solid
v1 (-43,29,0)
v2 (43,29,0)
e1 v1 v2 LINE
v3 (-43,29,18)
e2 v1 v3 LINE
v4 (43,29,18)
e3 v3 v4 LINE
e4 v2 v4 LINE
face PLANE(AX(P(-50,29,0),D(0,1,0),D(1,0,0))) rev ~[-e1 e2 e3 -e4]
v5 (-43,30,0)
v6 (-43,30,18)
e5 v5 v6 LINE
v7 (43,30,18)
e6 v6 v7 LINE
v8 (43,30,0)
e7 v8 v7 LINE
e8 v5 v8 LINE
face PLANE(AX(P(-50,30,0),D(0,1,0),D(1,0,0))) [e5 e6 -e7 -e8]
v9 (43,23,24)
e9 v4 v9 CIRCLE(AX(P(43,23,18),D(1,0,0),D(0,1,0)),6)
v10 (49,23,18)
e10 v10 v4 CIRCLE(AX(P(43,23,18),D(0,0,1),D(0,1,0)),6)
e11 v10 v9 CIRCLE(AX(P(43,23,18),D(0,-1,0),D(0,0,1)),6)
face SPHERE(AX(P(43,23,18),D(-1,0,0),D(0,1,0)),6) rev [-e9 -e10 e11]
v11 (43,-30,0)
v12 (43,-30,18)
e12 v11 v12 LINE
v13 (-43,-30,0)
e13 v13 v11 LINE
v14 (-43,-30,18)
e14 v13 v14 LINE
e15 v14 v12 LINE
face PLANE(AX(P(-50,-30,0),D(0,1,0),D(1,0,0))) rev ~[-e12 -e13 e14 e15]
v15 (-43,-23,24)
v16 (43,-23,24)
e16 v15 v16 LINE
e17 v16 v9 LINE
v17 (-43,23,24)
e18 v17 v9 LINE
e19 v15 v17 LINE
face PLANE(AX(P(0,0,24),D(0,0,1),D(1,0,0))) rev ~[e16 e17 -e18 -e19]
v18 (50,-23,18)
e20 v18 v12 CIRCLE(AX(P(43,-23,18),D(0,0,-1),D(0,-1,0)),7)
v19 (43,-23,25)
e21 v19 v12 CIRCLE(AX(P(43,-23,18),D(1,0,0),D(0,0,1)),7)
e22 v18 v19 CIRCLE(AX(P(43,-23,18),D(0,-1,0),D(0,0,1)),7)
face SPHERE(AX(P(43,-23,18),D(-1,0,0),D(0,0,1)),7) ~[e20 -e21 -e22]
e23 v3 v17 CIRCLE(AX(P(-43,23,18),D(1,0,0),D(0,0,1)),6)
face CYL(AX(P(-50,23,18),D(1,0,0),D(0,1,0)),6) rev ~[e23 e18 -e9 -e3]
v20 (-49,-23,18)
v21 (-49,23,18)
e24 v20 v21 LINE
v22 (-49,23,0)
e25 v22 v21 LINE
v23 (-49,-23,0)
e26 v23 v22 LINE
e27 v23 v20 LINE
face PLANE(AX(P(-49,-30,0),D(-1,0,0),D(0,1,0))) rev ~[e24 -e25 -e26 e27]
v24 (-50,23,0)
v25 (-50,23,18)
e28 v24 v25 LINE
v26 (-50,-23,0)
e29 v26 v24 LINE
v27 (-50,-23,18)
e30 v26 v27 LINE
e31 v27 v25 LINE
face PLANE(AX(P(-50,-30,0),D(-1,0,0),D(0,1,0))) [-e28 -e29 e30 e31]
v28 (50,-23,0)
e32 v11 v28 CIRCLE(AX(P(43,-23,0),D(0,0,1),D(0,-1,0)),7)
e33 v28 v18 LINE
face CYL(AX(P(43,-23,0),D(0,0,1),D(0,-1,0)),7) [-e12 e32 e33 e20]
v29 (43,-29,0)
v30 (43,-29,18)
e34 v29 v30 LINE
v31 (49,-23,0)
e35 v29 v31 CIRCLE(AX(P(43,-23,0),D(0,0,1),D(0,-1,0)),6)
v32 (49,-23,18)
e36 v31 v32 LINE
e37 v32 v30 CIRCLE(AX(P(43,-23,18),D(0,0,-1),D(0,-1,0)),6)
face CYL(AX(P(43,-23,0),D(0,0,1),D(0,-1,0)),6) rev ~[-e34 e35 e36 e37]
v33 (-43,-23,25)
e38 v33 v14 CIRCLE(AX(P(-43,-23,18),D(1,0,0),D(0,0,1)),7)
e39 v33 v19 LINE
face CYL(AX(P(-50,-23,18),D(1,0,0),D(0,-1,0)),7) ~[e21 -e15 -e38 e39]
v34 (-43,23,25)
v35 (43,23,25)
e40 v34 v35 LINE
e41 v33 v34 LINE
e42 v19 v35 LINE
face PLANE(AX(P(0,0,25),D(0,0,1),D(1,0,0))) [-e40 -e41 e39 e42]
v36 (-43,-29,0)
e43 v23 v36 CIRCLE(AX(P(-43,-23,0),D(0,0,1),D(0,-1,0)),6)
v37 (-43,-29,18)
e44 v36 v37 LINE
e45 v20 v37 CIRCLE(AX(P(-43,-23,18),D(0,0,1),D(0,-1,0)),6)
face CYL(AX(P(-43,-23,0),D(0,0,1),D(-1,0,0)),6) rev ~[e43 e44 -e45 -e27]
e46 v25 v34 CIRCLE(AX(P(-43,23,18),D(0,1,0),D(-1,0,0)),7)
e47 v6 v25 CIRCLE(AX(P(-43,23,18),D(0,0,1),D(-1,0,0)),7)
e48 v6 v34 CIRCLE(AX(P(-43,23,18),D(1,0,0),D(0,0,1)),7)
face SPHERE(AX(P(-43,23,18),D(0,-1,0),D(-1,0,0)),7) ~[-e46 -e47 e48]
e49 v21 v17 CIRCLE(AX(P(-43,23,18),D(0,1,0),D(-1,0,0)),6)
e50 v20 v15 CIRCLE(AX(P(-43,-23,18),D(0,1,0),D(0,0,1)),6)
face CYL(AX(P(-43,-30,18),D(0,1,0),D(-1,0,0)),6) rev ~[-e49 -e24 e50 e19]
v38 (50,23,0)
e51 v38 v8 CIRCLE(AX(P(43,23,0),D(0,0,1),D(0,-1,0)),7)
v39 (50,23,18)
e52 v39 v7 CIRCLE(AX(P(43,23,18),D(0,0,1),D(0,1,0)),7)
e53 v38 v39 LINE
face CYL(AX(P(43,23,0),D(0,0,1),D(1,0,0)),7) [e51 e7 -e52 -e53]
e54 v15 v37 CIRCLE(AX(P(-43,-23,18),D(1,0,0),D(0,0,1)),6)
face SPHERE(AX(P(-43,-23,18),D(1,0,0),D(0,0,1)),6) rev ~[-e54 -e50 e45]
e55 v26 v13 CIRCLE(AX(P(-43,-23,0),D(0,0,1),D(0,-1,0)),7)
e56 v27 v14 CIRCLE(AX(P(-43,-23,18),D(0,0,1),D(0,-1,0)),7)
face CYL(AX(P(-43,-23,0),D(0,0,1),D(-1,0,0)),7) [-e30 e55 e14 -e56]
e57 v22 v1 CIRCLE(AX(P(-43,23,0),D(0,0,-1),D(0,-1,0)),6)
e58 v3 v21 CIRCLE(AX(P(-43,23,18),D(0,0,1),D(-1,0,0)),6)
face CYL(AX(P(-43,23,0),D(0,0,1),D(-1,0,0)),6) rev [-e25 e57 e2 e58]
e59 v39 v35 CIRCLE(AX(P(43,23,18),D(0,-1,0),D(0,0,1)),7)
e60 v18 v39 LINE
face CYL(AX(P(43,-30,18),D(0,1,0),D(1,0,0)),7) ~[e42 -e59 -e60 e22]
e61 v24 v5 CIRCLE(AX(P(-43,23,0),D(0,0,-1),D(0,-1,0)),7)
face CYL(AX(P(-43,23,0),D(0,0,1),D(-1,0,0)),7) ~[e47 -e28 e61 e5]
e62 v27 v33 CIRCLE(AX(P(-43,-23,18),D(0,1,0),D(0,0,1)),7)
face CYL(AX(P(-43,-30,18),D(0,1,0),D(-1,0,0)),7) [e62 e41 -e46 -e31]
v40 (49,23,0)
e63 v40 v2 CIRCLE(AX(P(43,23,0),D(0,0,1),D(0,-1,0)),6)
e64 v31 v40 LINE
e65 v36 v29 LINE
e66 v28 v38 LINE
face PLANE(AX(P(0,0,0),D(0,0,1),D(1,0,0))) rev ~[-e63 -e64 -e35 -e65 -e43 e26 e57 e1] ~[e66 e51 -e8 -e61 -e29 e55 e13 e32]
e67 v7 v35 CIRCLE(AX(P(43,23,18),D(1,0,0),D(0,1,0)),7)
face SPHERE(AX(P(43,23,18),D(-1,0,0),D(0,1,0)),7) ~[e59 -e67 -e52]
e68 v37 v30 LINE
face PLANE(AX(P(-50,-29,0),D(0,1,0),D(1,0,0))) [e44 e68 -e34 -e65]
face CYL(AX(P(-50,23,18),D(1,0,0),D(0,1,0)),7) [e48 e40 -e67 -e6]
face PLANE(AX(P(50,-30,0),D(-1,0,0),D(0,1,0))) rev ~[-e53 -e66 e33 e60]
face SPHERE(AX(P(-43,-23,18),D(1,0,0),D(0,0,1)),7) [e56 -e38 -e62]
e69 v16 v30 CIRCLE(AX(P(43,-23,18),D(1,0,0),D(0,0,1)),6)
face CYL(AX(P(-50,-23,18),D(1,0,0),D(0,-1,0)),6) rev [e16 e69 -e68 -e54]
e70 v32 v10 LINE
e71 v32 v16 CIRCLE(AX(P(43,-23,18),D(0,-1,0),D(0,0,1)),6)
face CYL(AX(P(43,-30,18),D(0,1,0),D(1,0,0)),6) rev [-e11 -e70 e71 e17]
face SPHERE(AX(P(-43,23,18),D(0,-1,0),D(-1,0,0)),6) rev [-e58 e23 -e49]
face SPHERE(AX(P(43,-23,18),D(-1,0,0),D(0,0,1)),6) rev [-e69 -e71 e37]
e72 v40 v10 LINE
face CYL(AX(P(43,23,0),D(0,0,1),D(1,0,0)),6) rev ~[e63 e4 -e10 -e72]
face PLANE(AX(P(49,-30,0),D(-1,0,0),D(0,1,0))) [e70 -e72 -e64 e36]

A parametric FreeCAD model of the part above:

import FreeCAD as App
import Part
import Sketcher

V = App.Vector


def edges_at(feature, points):
    """Names of the edges that pass closest to the given points."""
    edges = feature.Shape.Edges
    near = lambda p: min(range(len(edges)), key=lambda i: edges[i].distToShape(Part.Vertex(*p))[0])
    return sorted({f"Edge{near(p) + 1}" for p in points})


def faces_at(feature, points):
    """Names of the faces that lie closest to the given points."""
    faces = feature.Shape.Faces
    near = lambda p: min(range(len(faces)), key=lambda i: faces[i].distToShape(Part.Vertex(*p))[0])
    return sorted({f"Face{near(p) + 1}" for p in points})

doc = App.newDocument("Part")
params = doc.addObject("Spreadsheet::Sheet", "Params")
for row, (alias, value) in enumerate([
    ("sketch1_width", "100 mm"),
    ("sketch1_height", "60 mm"),
    ("pad1_length", "25 mm"),
    ("fillet_radius", "7 mm"),
    ("thickness_wall", "1 mm"),
], start=1):
    params.set(f"A{row}", alias)
    params.set(f"B{row}", "=" + value)
    params.setAlias(f"B{row}", alias)

body = doc.addObject("PartDesign::Body", "Body")

sketch1 = body.newObject("Sketcher::SketchObject", "Sketch")
sketch1.AttachmentSupport = (doc.getObject("XY_Plane"), [""])
sketch1.MapMode = "FlatFace"
sketch1.addGeometry([
    Part.LineSegment(V(-50, 30, 0), V(-50, -30, 0)),
    Part.LineSegment(V(-50, -30, 0), V(50, -30, 0)),
    Part.LineSegment(V(50, -30, 0), V(50, 30, 0)),
    Part.LineSegment(V(50, 30, 0), V(-50, 30, 0)),
], False)
sketch1.addConstraint([
    Sketcher.Constraint("Coincident", 0, 2, 1, 1),
    Sketcher.Constraint("Coincident", 1, 2, 2, 1),
    Sketcher.Constraint("Coincident", 2, 2, 3, 1),
    Sketcher.Constraint("Coincident", 3, 2, 0, 1),
    Sketcher.Constraint("Vertical", 0),
    Sketcher.Constraint("Horizontal", 1),
    Sketcher.Constraint("Vertical", 2),
    Sketcher.Constraint("Horizontal", 3),
    Sketcher.Constraint("Symmetric", 0, 2, 2, 2, -1, 1),
    Sketcher.Constraint("DistanceX", 1, 1, 1, 2, 100.0),
    Sketcher.Constraint("DistanceY", 0, 2, 0, 1, 60.0),
])
sketch1.setExpression("Constraints[9]", "Params.sketch1_width")
sketch1.setExpression("Constraints[10]", "Params.sketch1_height")
pad1 = body.newObject("PartDesign::Pad", "Pad")
pad1.Profile = sketch1
pad1.setExpression("Length", "Params.pad1_length")
doc.recompute()

fillet = body.newObject("PartDesign::Fillet", "Fillet")
fillet.Base = (pad1, edges_at(pad1, [
    (0, -30, 25),
    (-50, 0, 25),
    (-50, -30, 12.5),
    (-50, 30, 12.5),
    (0, 30, 25),
    (50, 30, 12.5),
    (50, 0, 25),
    (50, -30, 12.5),
]))
fillet.setExpression("Radius", "Params.fillet_radius")
doc.recompute()

thickness = body.newObject("PartDesign::Thickness", "Thickness")
thickness.Base = (fillet, faces_at(fillet, [(0, 0, 0)]))
thickness.setExpression("Value", "Params.thickness_wall")
thickness.Reversed = True
thickness.Join = "Arc"

doc.recompute()
